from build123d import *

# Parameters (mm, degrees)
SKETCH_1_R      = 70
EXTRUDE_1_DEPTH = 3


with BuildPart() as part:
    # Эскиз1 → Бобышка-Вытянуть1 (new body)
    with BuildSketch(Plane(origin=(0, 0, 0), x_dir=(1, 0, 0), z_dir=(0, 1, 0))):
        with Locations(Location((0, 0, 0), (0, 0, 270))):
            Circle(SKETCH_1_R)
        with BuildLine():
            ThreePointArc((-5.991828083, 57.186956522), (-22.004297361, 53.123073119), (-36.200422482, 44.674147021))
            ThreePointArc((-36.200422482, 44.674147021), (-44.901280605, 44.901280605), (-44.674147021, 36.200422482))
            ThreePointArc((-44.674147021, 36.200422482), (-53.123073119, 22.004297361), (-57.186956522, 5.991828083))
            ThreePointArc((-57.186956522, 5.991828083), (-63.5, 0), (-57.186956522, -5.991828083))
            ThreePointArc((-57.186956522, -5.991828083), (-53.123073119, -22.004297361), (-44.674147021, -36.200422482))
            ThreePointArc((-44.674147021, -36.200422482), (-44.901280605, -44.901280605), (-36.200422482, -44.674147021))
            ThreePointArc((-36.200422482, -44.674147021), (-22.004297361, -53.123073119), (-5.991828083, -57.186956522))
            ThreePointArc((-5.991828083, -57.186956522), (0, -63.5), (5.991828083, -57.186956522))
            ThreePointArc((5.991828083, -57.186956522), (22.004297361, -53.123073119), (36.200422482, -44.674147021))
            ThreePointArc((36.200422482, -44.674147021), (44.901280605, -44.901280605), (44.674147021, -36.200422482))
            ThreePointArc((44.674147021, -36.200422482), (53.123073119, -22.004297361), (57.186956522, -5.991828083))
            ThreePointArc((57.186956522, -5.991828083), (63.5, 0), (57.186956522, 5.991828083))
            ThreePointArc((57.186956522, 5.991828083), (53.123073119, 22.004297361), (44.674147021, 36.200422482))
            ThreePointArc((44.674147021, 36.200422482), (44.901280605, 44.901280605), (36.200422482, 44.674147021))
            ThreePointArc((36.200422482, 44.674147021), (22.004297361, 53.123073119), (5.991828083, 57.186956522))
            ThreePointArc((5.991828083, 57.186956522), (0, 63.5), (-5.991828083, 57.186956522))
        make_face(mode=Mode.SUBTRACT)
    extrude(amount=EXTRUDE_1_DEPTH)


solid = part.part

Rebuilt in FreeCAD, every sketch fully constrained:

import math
import FreeCAD as App
import Part
import Sketcher
from FreeCAD import Vector
Q = App.Units.Quantity

doc = App.newDocument("Part")
params = doc.addObject("Spreadsheet::Sheet", "Params")
for row, (alias, value) in enumerate([
    ("sketch1_diameter", "140 mm"),
    ("sketch1_radius", "6 mm"),
    ("sketch1_radius2", "57.5 mm"),
    ("pad1_length", "3 mm"),
], start=1):
    params.set(f"A{row}", alias)
    params.set(f"B{row}", "=" + value)
    params.setAlias(f"B{row}", alias)

body = doc.addObject("PartDesign::Body", "Body")

# Sketch on XZ plane
sketch1 = body.newObject("Sketcher::SketchObject", "Sketch")
sketch1.AttachmentSupport = (doc.getObject("XZ_Plane"), [""])
sketch1.MapMode = "FlatFace"
sketch1.addGeometry(Part.Circle(Vector(0, 0, 0), Vector(0, 0, 1), 70), False)
sketch1.addGeometry(Part.ArcOfCircle(Part.Circle(Vector(0, 0, 0), Vector(0, 0, 1), 57.5), math.radians(-129.018594), math.radians(-95.981406)), False)
sketch1.addGeometry(Part.ArcOfCircle(Part.Circle(Vector(0, -57.5, 0), Vector(0, 0, 1), 6), math.radians(177.009297), math.radians(362.990703)), False)
sketch1.addGeometry(Part.ArcOfCircle(Part.Circle(Vector(0, 0, 0), Vector(0, 0, 1), 57.5), math.radians(-84.018594), math.radians(-50.981406)), False)
sketch1.addGeometry(Part.ArcOfCircle(Part.Circle(Vector(40.65864, -40.65864, 0), Vector(0, 0, 1), 6), math.radians(-137.990703), math.radians(47.990703)), False)
sketch1.addGeometry(Part.ArcOfCircle(Part.Circle(Vector(0, 0, 0), Vector(0, 0, 1), 57.5), math.radians(-39.018594), math.radians(-5.981406)), False)
sketch1.addGeometry(Part.ArcOfCircle(Part.Circle(Vector(57.5, 0, 0), Vector(0, 0, 1), 6), math.radians(-92.990703), math.radians(92.990703)), False)
sketch1.addGeometry(Part.ArcOfCircle(Part.Circle(Vector(0, 0, 0), Vector(0, 0, 1), 57.5), math.radians(5.981406), math.radians(39.018594)), False)
sketch1.addGeometry(Part.ArcOfCircle(Part.Circle(Vector(40.65864, 40.65864, 0), Vector(0, 0, 1), 6), math.radians(-47.990703), math.radians(137.990703)), False)
sketch1.addGeometry(Part.ArcOfCircle(Part.Circle(Vector(0, 0, 0), Vector(0, 0, 1), 57.5), math.radians(50.981406), math.radians(84.018594)), False)
sketch1.addGeometry(Part.ArcOfCircle(Part.Circle(Vector(0, 57.5, 0), Vector(0, 0, 1), 6), math.radians(-2.990703), math.radians(182.990703)), False)
sketch1.addGeometry(Part.ArcOfCircle(Part.Circle(Vector(0, 0, 0), Vector(0, 0, 1), 57.5), math.radians(95.981406), math.radians(129.018594)), False)
sketch1.addGeometry(Part.ArcOfCircle(Part.Circle(Vector(-40.65864, 40.65864, 0), Vector(0, 0, 1), 6), math.radians(42.009297), math.radians(227.990703)), False)
sketch1.addGeometry(Part.ArcOfCircle(Part.Circle(Vector(0, 0, 0), Vector(0, 0, 1), 57.5), math.radians(140.981406), math.radians(174.018594)), False)
sketch1.addGeometry(Part.ArcOfCircle(Part.Circle(Vector(-57.5, 0, 0), Vector(0, 0, 1), 6), math.radians(87.009297), math.radians(272.990703)), False)
sketch1.addGeometry(Part.ArcOfCircle(Part.Circle(Vector(0, 0, 0), Vector(0, 0, 1), 57.5), math.radians(-174.018594), math.radians(-140.981406)), False)
sketch1.addGeometry(Part.ArcOfCircle(Part.Circle(Vector(-40.65864, -40.65864, 0), Vector(0, 0, 1), 6), math.radians(132.009297), math.radians(317.990703)), False)
sketch1.addConstraint(Sketcher.Constraint("Coincident", 1, 2, 2, 1))
sketch1.addConstraint(Sketcher.Constraint("Coincident", 2, 2, 3, 1))
sketch1.addConstraint(Sketcher.Constraint("Coincident", 3, 2, 4, 1))
sketch1.addConstraint(Sketcher.Constraint("Coincident", 4, 2, 5, 1))
sketch1.addConstraint(Sketcher.Constraint("Coincident", 5, 2, 6, 1))
sketch1.addConstraint(Sketcher.Constraint("Coincident", 6, 2, 7, 1))
sketch1.addConstraint(Sketcher.Constraint("Coincident", 7, 2, 8, 1))
sketch1.addConstraint(Sketcher.Constraint("Coincident", 8, 2, 9, 1))
sketch1.addConstraint(Sketcher.Constraint("Coincident", 9, 2, 10, 1))
sketch1.addConstraint(Sketcher.Constraint("Coincident", 10, 2, 11, 1))
sketch1.addConstraint(Sketcher.Constraint("Coincident", 11, 2, 12, 1))
sketch1.addConstraint(Sketcher.Constraint("Coincident", 12, 2, 13, 1))
sketch1.addConstraint(Sketcher.Constraint("Coincident", 13, 2, 14, 1))
sketch1.addConstraint(Sketcher.Constraint("Coincident", 14, 2, 15, 1))
sketch1.addConstraint(Sketcher.Constraint("Coincident", 15, 2, 16, 1))
sketch1.addConstraint(Sketcher.Constraint("Coincident", 16, 2, 1, 1))
sketch1.addConstraint(Sketcher.Constraint("Coincident", 0, 3, -1, 1))
sketch1.addConstraint(Sketcher.Constraint("Coincident", 1, 3, -1, 1))
sketch1.addConstraint(Sketcher.Constraint("Coincident", 3, 3, -1, 1))
sketch1.addConstraint(Sketcher.Constraint("Coincident", 5, 3, -1, 1))
sketch1.addConstraint(Sketcher.Constraint("Coincident", 7, 3, -1, 1))
sketch1.addConstraint(Sketcher.Constraint("Coincident", 9, 3, -1, 1))
sketch1.addConstraint(Sketcher.Constraint("Coincident", 11, 3, -1, 1))
sketch1.addConstraint(Sketcher.Constraint("Coincident", 13, 3, -1, 1))
sketch1.addConstraint(Sketcher.Constraint("Coincident", 15, 3, -1, 1))
sketch1.addConstraint(Sketcher.Constraint("Equal", 1, 3))
sketch1.addConstraint(Sketcher.Constraint("Equal", 2, 4))
sketch1.addConstraint(Sketcher.Constraint("Equal", 3, 5))
sketch1.addConstraint(Sketcher.Constraint("Equal", 4, 6))
sketch1.addConstraint(Sketcher.Constraint("Equal", 5, 7))
sketch1.addConstraint(Sketcher.Constraint("Equal", 6, 8))
sketch1.addConstraint(Sketcher.Constraint("Equal", 7, 9))
sketch1.addConstraint(Sketcher.Constraint("Equal", 8, 10))
sketch1.addConstraint(Sketcher.Constraint("Equal", 9, 11))
sketch1.addConstraint(Sketcher.Constraint("Equal", 10, 12))
sketch1.addConstraint(Sketcher.Constraint("Equal", 11, 13))
sketch1.addConstraint(Sketcher.Constraint("Equal", 12, 14))
sketch1.addConstraint(Sketcher.Constraint("Equal", 13, 15))
sketch1.addConstraint(Sketcher.Constraint("Equal", 14, 16))
sketch1.addConstraint(Sketcher.Constraint("Symmetric", 2, 3, 10, 3, -1, 1))
sketch1.addConstraint(Sketcher.Constraint("Symmetric", 4, 3, 12, 3, -1, 1))
sketch1.addConstraint(Sketcher.Constraint("Symmetric", 6, 3, 14, 3, -1, 1))
sketch1.addConstraint(Sketcher.Constraint("Symmetric", 8, 3, 16, 3, -1, 1))
sketch1.addConstraint(Sketcher.Constraint("Symmetric", 8, 3, 12, 3, -2))
sketch1.addConstraint(Sketcher.Constraint("PointOnObject", 2, 3, -2))
sketch1.addConstraint(Sketcher.Constraint("PointOnObject", 6, 3, -1))
sketch1.addConstraint(Sketcher.Constraint("Diameter", 0, Q("140 mm")))
sketch1.addConstraint(Sketcher.Constraint("Radius", 2, Q("6 mm")))
sketch1.addConstraint(Sketcher.Constraint("Radius", 1, Q("57.5 mm")))
sketch1.addConstraint(Sketcher.Constraint("DistanceY", 2, 3, -1, 1, Q("57.5 mm")))
sketch1.addConstraint(Sketcher.Constraint("DistanceX", -1, 1, 6, 3, Q("57.5 mm")))
sketch1.addConstraint(Sketcher.Constraint("DistanceX", -1, 1, 4, 3, Q("40.65864 mm")))
sketch1.addConstraint(Sketcher.Constraint("DistanceY", 4, 3, -1, 1, Q("40.65864 mm")))
sketch1.setExpression("Constraints[46]", "Params.sketch1_diameter")
sketch1.setExpression("Constraints[47]", "Params.sketch1_radius")
sketch1.setExpression("Constraints[48]", "Params.sketch1_radius2")
pad1 = body.newObject("PartDesign::Pad", "Pad")
pad1.Profile = sketch1
pad1.setExpression("Length", "Params.pad1_length")
pad1.Reversed = True

doc.recompute()
